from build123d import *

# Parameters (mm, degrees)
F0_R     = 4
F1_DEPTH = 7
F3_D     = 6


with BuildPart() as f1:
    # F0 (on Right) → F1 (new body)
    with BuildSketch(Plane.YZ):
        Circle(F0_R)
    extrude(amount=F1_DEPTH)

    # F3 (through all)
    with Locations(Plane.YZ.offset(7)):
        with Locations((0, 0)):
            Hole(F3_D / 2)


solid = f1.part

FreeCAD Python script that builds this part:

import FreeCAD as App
import Part
import Sketcher
Q = App.Units.Quantity

doc = App.newDocument("Part")
params = doc.addObject("Spreadsheet::Sheet", "Params")
for row, (alias, value) in enumerate([
    ("sketch1_diameter", "8 mm"),
    ("pad1_length", "7 mm"),
    ("sketch2_diameter", "6 mm"),
    ("hole_diameter", "6 mm"),
], start=1):
    params.set(f"A{row}", alias)
    params.set(f"B{row}", "=" + value)
    params.setAlias(f"B{row}", alias)

body = doc.addObject("PartDesign::Body", "Body")

# Sketch on YZ plane
sketch1 = doc.addObject("Sketcher::SketchObject", "Sketch")
body.addObject(sketch1)
sketch1.AttachmentSupport = (doc.YZ_Plane, [""])
sketch1.MapMode = "FlatFace"
sketch1.addGeometry(Part.Circle(App.Vector(0, 0, 0), App.Vector(0, 0, 1), 4), False)
sketch1.addConstraint([
    Sketcher.Constraint("Coincident", 0, 3, -1, 1),
    Sketcher.Constraint("Diameter", 0, Q("8 mm")),
])
sketch1.setExpression("Constraints[1]", "Params.sketch1_diameter")
pad1 = doc.addObject("PartDesign::Pad", "Pad")
body.addObject(pad1)
pad1.Profile = sketch1
pad1.setExpression("Length", "Params.pad1_length")

# Sketch on YZ plane
sketch2 = doc.addObject("Sketcher::SketchObject", "Sketch001")
body.addObject(sketch2)
sketch2.AttachmentSupport = (doc.YZ_Plane, [""])
sketch2.MapMode = "FlatFace"
sketch2.AttachmentOffset = App.Placement(App.Vector(0, 0, 7), App.Rotation())
sketch2.addGeometry(Part.Circle(App.Vector(0, 0, 0), App.Vector(0, 0, 1), 3), False)
sketch2.addConstraint([
    Sketcher.Constraint("Coincident", 0, 3, -1, 1),
    Sketcher.Constraint("Diameter", 0, Q("6 mm")),
])
sketch2.setExpression("Constraints[1]", "Params.sketch2_diameter")
doc.recompute()
hole = doc.addObject("PartDesign::Hole", "Hole")
body.addObject(hole)
hole.Profile = sketch2
hole.ThreadType = "None"
hole.setExpression("Diameter", "Params.hole_diameter")
hole.DepthType = "ThroughAll"

doc.recompute()
